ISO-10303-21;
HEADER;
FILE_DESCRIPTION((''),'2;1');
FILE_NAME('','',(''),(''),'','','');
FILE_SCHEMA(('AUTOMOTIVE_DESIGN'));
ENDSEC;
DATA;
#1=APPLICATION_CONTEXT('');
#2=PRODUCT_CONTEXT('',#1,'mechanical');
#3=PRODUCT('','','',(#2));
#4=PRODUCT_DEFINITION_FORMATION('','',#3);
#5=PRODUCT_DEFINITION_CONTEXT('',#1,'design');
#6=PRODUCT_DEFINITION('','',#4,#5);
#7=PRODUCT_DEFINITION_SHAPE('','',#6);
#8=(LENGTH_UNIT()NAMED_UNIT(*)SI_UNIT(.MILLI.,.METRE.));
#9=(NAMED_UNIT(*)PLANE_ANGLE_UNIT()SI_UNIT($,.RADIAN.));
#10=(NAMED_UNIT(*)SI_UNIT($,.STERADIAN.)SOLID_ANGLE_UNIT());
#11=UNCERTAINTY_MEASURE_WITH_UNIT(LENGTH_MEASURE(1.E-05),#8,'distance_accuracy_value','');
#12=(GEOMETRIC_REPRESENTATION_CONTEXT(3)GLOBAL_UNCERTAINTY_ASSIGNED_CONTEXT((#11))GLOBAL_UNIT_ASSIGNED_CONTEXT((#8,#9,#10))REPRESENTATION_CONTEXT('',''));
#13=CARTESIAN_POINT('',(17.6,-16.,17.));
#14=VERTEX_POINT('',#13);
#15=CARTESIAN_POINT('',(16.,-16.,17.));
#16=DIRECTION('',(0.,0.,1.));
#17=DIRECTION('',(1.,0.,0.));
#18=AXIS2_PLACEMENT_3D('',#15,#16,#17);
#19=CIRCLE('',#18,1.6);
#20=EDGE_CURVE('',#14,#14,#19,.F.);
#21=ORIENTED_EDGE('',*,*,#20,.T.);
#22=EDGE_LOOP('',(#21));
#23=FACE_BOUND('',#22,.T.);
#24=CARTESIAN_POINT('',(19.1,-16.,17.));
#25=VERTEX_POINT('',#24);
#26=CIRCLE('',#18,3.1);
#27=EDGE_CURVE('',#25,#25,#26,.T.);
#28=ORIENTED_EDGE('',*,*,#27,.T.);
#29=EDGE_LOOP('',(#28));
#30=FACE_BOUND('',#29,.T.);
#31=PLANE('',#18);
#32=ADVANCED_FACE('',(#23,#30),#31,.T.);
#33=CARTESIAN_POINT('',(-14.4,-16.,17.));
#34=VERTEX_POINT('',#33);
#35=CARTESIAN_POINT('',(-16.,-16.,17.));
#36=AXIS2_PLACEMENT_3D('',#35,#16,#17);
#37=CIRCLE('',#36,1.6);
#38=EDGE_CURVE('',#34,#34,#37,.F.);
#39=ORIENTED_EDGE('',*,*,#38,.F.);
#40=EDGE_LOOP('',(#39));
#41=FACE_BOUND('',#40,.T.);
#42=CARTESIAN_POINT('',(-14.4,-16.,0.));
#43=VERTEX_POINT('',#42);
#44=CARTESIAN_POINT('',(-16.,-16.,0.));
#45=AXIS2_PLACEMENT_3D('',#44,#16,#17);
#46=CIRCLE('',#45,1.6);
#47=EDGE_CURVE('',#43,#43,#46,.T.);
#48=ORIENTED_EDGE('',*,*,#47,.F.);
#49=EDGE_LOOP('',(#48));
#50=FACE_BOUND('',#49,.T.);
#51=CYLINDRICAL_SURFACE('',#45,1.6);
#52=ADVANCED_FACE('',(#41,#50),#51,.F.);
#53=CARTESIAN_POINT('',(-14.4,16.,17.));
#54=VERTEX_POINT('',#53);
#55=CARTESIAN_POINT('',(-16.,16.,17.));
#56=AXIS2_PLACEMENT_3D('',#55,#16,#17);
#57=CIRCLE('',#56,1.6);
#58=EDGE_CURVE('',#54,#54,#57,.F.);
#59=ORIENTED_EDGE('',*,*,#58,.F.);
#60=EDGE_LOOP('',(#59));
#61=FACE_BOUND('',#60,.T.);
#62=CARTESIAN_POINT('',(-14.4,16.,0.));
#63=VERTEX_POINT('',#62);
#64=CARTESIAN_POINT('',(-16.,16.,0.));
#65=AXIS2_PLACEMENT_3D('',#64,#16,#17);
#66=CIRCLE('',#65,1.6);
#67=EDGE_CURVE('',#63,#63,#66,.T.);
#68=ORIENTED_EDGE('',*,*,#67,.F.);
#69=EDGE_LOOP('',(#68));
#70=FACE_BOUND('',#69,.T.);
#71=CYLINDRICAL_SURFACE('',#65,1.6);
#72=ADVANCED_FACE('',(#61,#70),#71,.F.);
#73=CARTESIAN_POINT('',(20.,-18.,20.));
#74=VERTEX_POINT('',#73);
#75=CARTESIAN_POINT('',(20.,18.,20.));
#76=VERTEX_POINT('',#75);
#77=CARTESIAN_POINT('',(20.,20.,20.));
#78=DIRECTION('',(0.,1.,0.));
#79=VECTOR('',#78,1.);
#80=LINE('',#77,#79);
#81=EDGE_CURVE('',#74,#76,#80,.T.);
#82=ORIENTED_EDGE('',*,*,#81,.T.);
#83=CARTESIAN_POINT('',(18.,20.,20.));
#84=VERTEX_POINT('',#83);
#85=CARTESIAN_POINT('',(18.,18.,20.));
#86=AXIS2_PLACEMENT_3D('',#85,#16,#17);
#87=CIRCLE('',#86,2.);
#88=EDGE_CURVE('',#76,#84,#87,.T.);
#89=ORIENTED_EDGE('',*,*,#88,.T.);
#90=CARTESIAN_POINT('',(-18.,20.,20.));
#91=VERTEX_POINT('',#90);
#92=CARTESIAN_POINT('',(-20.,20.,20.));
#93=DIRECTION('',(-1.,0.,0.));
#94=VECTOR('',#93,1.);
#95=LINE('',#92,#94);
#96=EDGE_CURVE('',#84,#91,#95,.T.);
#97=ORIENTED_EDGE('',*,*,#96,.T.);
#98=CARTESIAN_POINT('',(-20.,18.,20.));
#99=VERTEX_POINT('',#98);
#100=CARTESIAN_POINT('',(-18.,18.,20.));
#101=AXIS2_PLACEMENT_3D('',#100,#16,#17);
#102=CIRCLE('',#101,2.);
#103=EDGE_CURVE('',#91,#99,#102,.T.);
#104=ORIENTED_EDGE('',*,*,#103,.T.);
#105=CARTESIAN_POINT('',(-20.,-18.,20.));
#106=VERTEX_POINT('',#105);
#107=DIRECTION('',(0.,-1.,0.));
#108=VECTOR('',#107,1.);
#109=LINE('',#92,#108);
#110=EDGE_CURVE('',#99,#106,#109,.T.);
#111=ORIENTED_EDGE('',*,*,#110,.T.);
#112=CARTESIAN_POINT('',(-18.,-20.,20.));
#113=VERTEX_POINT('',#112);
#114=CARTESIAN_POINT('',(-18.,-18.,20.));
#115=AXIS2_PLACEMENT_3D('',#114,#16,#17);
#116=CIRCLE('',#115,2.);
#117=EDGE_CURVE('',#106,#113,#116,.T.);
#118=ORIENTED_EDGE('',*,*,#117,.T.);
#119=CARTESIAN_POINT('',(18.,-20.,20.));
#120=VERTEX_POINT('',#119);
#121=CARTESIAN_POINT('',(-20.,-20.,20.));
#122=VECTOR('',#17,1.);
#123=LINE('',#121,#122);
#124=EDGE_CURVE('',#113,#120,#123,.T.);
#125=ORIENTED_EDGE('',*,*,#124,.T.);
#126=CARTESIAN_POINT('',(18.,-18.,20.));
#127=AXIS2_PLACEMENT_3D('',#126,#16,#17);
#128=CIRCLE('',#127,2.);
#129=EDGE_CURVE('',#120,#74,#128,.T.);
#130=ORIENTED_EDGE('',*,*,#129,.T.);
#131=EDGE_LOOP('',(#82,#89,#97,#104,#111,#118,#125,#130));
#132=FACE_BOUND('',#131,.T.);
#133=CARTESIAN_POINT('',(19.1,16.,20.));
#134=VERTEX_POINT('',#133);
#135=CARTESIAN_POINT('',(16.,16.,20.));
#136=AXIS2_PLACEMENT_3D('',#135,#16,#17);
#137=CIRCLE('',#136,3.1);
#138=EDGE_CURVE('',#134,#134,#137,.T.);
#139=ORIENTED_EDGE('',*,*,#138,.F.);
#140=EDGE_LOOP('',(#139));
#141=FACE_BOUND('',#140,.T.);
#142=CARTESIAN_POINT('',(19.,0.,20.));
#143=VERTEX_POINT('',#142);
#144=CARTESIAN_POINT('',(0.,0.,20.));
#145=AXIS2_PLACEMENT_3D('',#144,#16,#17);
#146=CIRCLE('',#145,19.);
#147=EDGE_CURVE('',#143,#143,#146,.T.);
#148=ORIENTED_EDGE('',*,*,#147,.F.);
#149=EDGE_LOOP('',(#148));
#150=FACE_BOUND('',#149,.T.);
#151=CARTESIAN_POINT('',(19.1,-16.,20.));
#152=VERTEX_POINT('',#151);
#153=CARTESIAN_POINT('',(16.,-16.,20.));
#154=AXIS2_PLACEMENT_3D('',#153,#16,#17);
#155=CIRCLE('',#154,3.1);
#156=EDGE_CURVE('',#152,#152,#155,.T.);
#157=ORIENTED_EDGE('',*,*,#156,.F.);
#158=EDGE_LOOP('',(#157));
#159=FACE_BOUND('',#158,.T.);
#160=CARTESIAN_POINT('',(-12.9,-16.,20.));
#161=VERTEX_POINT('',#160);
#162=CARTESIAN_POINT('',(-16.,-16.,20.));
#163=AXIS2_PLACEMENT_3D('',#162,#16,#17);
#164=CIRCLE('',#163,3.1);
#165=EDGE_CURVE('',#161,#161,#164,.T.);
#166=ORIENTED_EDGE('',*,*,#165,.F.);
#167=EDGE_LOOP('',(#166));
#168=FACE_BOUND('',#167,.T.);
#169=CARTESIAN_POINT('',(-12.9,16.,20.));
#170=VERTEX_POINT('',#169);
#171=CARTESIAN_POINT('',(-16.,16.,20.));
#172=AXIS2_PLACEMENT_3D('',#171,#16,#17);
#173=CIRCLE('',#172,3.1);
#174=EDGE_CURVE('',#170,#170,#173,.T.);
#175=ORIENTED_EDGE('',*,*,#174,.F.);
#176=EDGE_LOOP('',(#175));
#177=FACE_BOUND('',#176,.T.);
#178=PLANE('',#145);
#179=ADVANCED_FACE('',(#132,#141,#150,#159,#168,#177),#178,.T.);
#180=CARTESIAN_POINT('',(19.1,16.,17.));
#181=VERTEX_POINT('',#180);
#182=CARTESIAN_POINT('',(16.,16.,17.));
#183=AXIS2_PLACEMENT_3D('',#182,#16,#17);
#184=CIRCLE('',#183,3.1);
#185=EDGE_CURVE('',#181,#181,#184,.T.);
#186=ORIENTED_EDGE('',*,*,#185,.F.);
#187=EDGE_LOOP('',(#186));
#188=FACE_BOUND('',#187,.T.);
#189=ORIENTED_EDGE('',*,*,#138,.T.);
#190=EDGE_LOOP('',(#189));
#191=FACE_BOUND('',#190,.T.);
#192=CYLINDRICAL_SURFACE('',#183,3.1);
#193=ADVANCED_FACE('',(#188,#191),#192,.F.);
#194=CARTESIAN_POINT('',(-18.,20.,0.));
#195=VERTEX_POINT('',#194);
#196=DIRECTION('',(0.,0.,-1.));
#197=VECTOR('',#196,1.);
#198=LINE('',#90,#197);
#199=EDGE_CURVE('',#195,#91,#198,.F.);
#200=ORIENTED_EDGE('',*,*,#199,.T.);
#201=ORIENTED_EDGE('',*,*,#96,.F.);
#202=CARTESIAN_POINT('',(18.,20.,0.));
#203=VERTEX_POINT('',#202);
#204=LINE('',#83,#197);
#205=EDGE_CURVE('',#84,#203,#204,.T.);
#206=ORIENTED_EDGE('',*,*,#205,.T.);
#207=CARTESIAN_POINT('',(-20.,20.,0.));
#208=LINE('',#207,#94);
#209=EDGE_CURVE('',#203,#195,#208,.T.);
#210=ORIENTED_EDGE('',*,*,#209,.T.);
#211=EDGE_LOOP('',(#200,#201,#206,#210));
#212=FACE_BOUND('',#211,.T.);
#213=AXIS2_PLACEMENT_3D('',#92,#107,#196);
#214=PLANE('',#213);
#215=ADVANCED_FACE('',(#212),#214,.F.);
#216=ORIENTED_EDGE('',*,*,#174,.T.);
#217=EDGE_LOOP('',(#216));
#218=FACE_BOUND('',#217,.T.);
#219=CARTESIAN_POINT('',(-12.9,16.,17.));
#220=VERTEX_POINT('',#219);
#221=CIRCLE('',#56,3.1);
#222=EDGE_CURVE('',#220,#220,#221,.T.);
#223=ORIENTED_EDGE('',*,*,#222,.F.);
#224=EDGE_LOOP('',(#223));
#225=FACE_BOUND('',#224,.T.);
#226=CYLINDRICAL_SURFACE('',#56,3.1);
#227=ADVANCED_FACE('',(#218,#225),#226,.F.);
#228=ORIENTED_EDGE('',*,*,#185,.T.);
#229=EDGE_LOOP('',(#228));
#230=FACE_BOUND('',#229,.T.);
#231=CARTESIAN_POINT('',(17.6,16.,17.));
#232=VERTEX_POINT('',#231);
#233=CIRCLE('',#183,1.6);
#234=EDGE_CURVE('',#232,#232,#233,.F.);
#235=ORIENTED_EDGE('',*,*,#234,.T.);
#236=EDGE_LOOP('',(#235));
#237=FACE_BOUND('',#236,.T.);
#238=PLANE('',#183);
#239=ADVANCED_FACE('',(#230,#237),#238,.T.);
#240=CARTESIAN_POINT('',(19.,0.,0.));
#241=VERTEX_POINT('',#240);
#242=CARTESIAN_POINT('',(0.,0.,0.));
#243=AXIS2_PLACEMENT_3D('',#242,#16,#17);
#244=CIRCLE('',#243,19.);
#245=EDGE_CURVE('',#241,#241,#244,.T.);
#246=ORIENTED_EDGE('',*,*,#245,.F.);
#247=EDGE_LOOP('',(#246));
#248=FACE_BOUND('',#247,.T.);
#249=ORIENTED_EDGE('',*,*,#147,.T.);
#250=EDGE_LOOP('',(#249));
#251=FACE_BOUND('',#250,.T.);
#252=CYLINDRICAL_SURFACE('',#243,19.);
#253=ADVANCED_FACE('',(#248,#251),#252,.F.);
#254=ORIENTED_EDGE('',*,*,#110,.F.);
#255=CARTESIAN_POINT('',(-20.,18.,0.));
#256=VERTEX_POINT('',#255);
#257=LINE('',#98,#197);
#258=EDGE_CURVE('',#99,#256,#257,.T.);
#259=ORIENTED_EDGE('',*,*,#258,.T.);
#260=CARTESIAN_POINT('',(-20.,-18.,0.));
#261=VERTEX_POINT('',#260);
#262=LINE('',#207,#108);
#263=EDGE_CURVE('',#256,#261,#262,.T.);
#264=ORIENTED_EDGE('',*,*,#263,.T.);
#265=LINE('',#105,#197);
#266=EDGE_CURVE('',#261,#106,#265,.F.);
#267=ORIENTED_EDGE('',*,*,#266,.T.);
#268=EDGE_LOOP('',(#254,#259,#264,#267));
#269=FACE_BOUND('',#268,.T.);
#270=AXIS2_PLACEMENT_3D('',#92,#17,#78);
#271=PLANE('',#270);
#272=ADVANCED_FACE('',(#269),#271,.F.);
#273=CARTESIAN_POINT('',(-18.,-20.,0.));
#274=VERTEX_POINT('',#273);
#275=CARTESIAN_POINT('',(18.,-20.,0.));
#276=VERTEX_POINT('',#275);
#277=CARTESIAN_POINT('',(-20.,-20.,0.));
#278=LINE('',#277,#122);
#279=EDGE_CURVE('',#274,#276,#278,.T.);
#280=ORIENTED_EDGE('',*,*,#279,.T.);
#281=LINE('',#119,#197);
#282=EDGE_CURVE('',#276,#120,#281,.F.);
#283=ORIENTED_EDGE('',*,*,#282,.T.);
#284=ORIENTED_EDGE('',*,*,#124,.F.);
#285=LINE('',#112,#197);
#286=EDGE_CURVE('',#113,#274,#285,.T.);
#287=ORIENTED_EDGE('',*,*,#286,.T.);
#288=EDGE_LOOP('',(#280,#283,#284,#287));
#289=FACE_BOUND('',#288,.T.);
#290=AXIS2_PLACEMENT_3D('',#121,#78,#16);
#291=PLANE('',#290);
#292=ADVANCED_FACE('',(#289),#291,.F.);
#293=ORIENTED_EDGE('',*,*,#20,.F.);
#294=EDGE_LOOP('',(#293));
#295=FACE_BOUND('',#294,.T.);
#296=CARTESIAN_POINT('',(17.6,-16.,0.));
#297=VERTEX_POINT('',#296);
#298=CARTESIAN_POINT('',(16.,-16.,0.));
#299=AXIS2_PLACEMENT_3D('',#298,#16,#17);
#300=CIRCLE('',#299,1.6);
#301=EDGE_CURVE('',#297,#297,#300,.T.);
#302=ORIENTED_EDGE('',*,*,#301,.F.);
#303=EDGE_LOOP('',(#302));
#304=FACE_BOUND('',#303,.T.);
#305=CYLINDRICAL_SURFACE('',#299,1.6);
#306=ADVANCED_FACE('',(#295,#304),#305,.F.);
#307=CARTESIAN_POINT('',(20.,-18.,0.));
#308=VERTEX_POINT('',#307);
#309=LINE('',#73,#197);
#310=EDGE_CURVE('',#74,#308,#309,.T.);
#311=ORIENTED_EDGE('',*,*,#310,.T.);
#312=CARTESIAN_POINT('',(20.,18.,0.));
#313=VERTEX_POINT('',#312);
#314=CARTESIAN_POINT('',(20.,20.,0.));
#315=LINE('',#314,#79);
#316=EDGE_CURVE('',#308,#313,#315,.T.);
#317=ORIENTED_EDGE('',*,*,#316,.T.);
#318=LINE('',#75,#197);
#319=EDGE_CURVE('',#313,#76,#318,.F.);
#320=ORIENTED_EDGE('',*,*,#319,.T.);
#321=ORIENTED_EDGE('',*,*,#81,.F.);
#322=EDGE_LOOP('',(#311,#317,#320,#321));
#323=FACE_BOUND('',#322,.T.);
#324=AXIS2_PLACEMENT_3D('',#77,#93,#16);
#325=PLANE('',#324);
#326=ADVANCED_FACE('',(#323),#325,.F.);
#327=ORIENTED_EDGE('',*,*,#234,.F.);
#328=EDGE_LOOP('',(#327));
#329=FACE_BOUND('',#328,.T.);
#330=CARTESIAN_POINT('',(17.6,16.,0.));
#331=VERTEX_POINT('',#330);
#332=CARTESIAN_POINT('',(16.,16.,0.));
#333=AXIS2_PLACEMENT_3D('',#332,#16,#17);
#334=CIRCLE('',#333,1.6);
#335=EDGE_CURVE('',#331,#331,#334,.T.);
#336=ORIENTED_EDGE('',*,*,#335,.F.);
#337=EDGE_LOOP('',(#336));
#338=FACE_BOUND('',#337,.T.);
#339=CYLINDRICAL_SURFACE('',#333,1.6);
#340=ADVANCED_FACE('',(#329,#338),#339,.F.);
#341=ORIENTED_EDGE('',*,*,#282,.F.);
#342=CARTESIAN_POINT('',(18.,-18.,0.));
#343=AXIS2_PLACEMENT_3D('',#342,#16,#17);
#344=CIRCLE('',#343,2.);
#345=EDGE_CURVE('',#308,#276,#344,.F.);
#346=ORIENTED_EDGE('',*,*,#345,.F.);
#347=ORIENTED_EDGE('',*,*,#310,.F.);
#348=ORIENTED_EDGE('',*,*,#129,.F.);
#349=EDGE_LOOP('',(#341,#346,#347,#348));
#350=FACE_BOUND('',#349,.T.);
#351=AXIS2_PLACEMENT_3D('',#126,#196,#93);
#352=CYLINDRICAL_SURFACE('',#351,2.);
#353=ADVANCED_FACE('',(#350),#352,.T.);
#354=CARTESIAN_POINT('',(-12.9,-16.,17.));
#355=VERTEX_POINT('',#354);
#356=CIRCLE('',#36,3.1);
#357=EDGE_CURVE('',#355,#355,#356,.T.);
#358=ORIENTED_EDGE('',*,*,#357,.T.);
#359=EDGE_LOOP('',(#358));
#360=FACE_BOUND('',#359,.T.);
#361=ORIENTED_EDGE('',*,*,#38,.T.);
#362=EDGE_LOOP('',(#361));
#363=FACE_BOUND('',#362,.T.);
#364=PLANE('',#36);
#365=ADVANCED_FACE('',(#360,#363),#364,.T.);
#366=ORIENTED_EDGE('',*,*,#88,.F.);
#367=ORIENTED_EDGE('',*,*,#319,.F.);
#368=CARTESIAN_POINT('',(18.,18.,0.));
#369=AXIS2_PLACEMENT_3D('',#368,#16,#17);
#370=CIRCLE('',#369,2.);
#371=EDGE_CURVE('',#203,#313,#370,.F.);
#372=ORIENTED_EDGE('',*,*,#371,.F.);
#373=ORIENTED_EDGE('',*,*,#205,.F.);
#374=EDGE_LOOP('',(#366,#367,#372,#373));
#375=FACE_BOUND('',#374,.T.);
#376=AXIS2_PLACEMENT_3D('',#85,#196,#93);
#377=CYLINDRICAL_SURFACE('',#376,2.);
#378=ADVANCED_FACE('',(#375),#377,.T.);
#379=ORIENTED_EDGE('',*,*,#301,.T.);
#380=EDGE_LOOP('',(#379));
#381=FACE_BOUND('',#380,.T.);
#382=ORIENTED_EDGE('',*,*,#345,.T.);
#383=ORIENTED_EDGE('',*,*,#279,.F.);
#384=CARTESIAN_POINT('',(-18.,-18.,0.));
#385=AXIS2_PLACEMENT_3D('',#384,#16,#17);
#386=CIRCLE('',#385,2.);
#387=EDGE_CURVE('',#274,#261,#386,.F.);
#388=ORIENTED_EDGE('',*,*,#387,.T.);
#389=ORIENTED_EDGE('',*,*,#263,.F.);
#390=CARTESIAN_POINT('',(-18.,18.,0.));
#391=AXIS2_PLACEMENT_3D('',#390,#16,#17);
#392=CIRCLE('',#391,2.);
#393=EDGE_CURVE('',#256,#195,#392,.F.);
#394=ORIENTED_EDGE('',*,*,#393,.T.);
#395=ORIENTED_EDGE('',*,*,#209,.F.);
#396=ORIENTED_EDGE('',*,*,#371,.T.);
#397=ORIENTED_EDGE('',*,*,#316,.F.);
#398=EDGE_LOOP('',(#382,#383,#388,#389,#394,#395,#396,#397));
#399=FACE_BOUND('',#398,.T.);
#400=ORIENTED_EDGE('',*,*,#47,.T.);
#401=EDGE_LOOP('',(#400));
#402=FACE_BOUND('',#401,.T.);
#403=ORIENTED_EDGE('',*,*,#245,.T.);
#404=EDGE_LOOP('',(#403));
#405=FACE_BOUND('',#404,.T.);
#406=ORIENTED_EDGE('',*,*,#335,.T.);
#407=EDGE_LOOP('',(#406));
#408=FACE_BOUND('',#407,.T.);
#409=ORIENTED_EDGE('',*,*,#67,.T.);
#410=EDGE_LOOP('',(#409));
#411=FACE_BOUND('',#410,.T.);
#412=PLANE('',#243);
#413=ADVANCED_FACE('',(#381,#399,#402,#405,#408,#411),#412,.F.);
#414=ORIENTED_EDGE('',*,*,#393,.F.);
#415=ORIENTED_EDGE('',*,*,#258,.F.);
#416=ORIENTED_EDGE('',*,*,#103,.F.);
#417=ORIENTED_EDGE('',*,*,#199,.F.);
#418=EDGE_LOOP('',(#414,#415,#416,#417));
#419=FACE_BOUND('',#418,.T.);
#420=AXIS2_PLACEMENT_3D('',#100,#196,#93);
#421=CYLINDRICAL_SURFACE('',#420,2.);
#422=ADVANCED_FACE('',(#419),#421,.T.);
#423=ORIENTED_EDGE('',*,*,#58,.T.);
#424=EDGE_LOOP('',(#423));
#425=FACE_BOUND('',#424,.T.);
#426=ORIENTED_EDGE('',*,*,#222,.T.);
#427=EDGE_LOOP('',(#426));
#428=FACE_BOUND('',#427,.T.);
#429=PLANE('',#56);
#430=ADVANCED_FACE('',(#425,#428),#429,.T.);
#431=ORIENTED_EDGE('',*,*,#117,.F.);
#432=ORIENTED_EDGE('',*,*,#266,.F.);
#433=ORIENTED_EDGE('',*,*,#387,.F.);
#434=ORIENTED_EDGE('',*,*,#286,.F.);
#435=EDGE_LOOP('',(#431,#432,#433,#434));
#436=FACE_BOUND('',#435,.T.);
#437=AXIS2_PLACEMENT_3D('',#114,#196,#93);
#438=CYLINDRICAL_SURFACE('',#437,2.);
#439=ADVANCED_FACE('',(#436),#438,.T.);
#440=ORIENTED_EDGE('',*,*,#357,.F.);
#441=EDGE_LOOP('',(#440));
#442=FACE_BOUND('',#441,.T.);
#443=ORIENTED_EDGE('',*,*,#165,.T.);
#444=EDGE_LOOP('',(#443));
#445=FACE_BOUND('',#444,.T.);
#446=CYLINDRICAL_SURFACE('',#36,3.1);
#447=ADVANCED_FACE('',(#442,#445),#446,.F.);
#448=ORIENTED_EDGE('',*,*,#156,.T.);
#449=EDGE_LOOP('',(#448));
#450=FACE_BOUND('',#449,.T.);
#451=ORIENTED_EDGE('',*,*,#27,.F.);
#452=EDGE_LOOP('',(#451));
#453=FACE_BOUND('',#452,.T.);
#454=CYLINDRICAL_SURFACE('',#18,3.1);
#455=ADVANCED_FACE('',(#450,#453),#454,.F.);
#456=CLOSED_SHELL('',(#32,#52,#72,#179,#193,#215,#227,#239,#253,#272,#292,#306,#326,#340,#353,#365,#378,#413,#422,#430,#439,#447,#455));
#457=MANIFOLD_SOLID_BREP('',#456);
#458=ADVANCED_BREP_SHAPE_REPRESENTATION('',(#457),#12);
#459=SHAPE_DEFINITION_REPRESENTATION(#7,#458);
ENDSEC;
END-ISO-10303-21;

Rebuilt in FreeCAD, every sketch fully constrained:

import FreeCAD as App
import Part
import Sketcher
from FreeCAD import Vector
Q = App.Units.Quantity


def edges_at(feature, points):
    """Names of the edges that pass closest to the given points."""
    edges = feature.Shape.Edges
    near = lambda p: min(range(len(edges)), key=lambda i: edges[i].distToShape(Part.Vertex(*p))[0])
    return sorted({f"Edge{near(p) + 1}" for p in points})


def add_polygon(sketch, points):
    """Adds a closed chain of lines whose ends are joined by coincident constraints."""
    first, n = sketch.GeometryCount, len(points)
    for a, b in zip(points, points[1:] + points[:1]):
        sketch.addGeometry(Part.LineSegment(App.Vector(*a, 0), App.Vector(*b, 0)), False)
    for i in range(n):
        sketch.addConstraint(Sketcher.Constraint("Coincident", first + i, 2, first + (i + 1) % n, 1))

doc = App.newDocument("Part")
params = doc.addObject("Spreadsheet::Sheet", "Params")
for row, (alias, value) in enumerate([
    ("sketch1_width", "40 mm"),
    ("pad1_length", "20 mm"),
    ("sketch2_diameter", "38 mm"),
    ("sketch2_diameter2", "3.2 mm"),
    ("fillet_radius", "2 mm"),
    ("sketch3_diameter", "6.2 mm"),
    ("pocket2_length", "3 mm"),
], start=1):
    params.set(f"A{row}", alias)
    params.set(f"B{row}", "=" + value)
    params.setAlias(f"B{row}", alias)

body = doc.addObject("PartDesign::Body", "Body")

# Sketch on XY plane
sketch1 = body.newObject("Sketcher::SketchObject", "Sketch")
sketch1.AttachmentSupport = (doc.getObject("XY_Plane"), [""])
sketch1.MapMode = "FlatFace"
add_polygon(sketch1, [(-20, 20), (-20, -20), (20, -20), (20, 20)])  # lines 0-3
sketch1.addConstraint(Sketcher.Constraint("Vertical", 0))
sketch1.addConstraint(Sketcher.Constraint("Horizontal", 1))
sketch1.addConstraint(Sketcher.Constraint("Vertical", 2))
sketch1.addConstraint(Sketcher.Constraint("Horizontal", 3))
sketch1.addConstraint(Sketcher.Constraint("Symmetric", 0, 2, 2, 2, -1, 1))
sketch1.addConstraint(Sketcher.Constraint("Equal", 3, 0))
sketch1.addConstraint(Sketcher.Constraint("DistanceX", 1, 1, 1, 2, Q("40 mm")))
sketch1.setExpression("Constraints[10]", "Params.sketch1_width")
pad1 = body.newObject("PartDesign::Pad", "Pad")
pad1.Profile = sketch1
pad1.setExpression("Length", "Params.pad1_length")

# Sketch on XY plane
sketch2 = body.newObject("Sketcher::SketchObject", "Sketch001")
sketch2.AttachmentSupport = (doc.getObject("XY_Plane"), [""])
sketch2.MapMode = "FlatFace"
sketch2.AttachmentOffset = App.Placement(Vector(0, 0, 20), App.Rotation())
sketch2.addGeometry(Part.Circle(Vector(0, 0, 0), Vector(0, 0, 1), 19), False)
sketch2.addGeometry(Part.Circle(Vector(-16, 16, 0), Vector(0, 0, 1), 1.6), False)
sketch2.addGeometry(Part.Circle(Vector(16, 16, 0), Vector(0, 0, 1), 1.6), False)
sketch2.addGeometry(Part.Circle(Vector(16, -16, 0), Vector(0, 0, 1), 1.6), False)
sketch2.addGeometry(Part.Circle(Vector(-16, -16, 0), Vector(0, 0, 1), 1.6), False)
sketch2.addConstraint(Sketcher.Constraint("Coincident", 0, 3, -1, 1))
sketch2.addConstraint(Sketcher.Constraint("Equal", 1, 2))
sketch2.addConstraint(Sketcher.Constraint("Equal", 2, 3))
sketch2.addConstraint(Sketcher.Constraint("Equal", 3, 4))
sketch2.addConstraint(Sketcher.Constraint("Symmetric", 1, 3, 3, 3, -1, 1))
sketch2.addConstraint(Sketcher.Constraint("Symmetric", 2, 3, 4, 3, -1, 1))
sketch2.addConstraint(Sketcher.Constraint("Symmetric", 1, 3, 2, 3, -2))
sketch2.addConstraint(Sketcher.Constraint("Diameter", 0, Q("38 mm")))
sketch2.addConstraint(Sketcher.Constraint("Diameter", 1, Q("3.2 mm")))
sketch2.addConstraint(Sketcher.Constraint("DistanceX", 1, 3, -1, 1, Q("16 mm")))
sketch2.addConstraint(Sketcher.Constraint("DistanceY", -1, 1, 1, 3, Q("16 mm")))
sketch2.setExpression("Constraints[7]", "Params.sketch2_diameter")
sketch2.setExpression("Constraints[8]", "Params.sketch2_diameter2")
pocket1 = body.newObject("PartDesign::Pocket", "Pocket")
pocket1.Profile = sketch2
pocket1.Type = "ThroughAll"
doc.recompute()

fillet = body.newObject("PartDesign::Fillet", "Fillet")
fillet.Base = (pocket1, edges_at(pocket1, [
    (20, -20, 10),
    (-20, -20, 10),
    (-20, 20, 10),
    (20, 20, 10),
]))
fillet.setExpression("Radius", "Params.fillet_radius")

# Sketch on XY plane
sketch3 = body.newObject("Sketcher::SketchObject", "Sketch002")
sketch3.AttachmentSupport = (doc.getObject("XY_Plane"), [""])
sketch3.MapMode = "FlatFace"
sketch3.AttachmentOffset = App.Placement(Vector(0, 0, 20), App.Rotation())
sketch3.addGeometry(Part.Circle(Vector(-16, -16, 0), Vector(0, 0, 1), 3.1), False)
sketch3.addGeometry(Part.Circle(Vector(16, -16, 0), Vector(0, 0, 1), 3.1), False)
sketch3.addGeometry(Part.Circle(Vector(16, 16, 0), Vector(0, 0, 1), 3.1), False)
sketch3.addGeometry(Part.Circle(Vector(-16, 16, 0), Vector(0, 0, 1), 3.1), False)
sketch3.addConstraint(Sketcher.Constraint("Equal", 0, 1))
sketch3.addConstraint(Sketcher.Constraint("Equal", 1, 2))
sketch3.addConstraint(Sketcher.Constraint("Equal", 2, 3))
sketch3.addConstraint(Sketcher.Constraint("Symmetric", 0, 3, 2, 3, -1, 1))
sketch3.addConstraint(Sketcher.Constraint("Symmetric", 1, 3, 3, 3, -1, 1))
sketch3.addConstraint(Sketcher.Constraint("Symmetric", 0, 3, 1, 3, -2))
sketch3.addConstraint(Sketcher.Constraint("Diameter", 0, Q("6.2 mm")))
sketch3.addConstraint(Sketcher.Constraint("DistanceX", 0, 3, -1, 1, Q("16 mm")))
sketch3.addConstraint(Sketcher.Constraint("DistanceY", 0, 3, -1, 1, Q("16 mm")))
sketch3.setExpression("Constraints[6]", "Params.sketch3_diameter")
pocket2 = body.newObject("PartDesign::Pocket", "Pocket001")
pocket2.Profile = sketch3
pocket2.setExpression("Length", "Params.pocket2_length")

doc.recompute()
